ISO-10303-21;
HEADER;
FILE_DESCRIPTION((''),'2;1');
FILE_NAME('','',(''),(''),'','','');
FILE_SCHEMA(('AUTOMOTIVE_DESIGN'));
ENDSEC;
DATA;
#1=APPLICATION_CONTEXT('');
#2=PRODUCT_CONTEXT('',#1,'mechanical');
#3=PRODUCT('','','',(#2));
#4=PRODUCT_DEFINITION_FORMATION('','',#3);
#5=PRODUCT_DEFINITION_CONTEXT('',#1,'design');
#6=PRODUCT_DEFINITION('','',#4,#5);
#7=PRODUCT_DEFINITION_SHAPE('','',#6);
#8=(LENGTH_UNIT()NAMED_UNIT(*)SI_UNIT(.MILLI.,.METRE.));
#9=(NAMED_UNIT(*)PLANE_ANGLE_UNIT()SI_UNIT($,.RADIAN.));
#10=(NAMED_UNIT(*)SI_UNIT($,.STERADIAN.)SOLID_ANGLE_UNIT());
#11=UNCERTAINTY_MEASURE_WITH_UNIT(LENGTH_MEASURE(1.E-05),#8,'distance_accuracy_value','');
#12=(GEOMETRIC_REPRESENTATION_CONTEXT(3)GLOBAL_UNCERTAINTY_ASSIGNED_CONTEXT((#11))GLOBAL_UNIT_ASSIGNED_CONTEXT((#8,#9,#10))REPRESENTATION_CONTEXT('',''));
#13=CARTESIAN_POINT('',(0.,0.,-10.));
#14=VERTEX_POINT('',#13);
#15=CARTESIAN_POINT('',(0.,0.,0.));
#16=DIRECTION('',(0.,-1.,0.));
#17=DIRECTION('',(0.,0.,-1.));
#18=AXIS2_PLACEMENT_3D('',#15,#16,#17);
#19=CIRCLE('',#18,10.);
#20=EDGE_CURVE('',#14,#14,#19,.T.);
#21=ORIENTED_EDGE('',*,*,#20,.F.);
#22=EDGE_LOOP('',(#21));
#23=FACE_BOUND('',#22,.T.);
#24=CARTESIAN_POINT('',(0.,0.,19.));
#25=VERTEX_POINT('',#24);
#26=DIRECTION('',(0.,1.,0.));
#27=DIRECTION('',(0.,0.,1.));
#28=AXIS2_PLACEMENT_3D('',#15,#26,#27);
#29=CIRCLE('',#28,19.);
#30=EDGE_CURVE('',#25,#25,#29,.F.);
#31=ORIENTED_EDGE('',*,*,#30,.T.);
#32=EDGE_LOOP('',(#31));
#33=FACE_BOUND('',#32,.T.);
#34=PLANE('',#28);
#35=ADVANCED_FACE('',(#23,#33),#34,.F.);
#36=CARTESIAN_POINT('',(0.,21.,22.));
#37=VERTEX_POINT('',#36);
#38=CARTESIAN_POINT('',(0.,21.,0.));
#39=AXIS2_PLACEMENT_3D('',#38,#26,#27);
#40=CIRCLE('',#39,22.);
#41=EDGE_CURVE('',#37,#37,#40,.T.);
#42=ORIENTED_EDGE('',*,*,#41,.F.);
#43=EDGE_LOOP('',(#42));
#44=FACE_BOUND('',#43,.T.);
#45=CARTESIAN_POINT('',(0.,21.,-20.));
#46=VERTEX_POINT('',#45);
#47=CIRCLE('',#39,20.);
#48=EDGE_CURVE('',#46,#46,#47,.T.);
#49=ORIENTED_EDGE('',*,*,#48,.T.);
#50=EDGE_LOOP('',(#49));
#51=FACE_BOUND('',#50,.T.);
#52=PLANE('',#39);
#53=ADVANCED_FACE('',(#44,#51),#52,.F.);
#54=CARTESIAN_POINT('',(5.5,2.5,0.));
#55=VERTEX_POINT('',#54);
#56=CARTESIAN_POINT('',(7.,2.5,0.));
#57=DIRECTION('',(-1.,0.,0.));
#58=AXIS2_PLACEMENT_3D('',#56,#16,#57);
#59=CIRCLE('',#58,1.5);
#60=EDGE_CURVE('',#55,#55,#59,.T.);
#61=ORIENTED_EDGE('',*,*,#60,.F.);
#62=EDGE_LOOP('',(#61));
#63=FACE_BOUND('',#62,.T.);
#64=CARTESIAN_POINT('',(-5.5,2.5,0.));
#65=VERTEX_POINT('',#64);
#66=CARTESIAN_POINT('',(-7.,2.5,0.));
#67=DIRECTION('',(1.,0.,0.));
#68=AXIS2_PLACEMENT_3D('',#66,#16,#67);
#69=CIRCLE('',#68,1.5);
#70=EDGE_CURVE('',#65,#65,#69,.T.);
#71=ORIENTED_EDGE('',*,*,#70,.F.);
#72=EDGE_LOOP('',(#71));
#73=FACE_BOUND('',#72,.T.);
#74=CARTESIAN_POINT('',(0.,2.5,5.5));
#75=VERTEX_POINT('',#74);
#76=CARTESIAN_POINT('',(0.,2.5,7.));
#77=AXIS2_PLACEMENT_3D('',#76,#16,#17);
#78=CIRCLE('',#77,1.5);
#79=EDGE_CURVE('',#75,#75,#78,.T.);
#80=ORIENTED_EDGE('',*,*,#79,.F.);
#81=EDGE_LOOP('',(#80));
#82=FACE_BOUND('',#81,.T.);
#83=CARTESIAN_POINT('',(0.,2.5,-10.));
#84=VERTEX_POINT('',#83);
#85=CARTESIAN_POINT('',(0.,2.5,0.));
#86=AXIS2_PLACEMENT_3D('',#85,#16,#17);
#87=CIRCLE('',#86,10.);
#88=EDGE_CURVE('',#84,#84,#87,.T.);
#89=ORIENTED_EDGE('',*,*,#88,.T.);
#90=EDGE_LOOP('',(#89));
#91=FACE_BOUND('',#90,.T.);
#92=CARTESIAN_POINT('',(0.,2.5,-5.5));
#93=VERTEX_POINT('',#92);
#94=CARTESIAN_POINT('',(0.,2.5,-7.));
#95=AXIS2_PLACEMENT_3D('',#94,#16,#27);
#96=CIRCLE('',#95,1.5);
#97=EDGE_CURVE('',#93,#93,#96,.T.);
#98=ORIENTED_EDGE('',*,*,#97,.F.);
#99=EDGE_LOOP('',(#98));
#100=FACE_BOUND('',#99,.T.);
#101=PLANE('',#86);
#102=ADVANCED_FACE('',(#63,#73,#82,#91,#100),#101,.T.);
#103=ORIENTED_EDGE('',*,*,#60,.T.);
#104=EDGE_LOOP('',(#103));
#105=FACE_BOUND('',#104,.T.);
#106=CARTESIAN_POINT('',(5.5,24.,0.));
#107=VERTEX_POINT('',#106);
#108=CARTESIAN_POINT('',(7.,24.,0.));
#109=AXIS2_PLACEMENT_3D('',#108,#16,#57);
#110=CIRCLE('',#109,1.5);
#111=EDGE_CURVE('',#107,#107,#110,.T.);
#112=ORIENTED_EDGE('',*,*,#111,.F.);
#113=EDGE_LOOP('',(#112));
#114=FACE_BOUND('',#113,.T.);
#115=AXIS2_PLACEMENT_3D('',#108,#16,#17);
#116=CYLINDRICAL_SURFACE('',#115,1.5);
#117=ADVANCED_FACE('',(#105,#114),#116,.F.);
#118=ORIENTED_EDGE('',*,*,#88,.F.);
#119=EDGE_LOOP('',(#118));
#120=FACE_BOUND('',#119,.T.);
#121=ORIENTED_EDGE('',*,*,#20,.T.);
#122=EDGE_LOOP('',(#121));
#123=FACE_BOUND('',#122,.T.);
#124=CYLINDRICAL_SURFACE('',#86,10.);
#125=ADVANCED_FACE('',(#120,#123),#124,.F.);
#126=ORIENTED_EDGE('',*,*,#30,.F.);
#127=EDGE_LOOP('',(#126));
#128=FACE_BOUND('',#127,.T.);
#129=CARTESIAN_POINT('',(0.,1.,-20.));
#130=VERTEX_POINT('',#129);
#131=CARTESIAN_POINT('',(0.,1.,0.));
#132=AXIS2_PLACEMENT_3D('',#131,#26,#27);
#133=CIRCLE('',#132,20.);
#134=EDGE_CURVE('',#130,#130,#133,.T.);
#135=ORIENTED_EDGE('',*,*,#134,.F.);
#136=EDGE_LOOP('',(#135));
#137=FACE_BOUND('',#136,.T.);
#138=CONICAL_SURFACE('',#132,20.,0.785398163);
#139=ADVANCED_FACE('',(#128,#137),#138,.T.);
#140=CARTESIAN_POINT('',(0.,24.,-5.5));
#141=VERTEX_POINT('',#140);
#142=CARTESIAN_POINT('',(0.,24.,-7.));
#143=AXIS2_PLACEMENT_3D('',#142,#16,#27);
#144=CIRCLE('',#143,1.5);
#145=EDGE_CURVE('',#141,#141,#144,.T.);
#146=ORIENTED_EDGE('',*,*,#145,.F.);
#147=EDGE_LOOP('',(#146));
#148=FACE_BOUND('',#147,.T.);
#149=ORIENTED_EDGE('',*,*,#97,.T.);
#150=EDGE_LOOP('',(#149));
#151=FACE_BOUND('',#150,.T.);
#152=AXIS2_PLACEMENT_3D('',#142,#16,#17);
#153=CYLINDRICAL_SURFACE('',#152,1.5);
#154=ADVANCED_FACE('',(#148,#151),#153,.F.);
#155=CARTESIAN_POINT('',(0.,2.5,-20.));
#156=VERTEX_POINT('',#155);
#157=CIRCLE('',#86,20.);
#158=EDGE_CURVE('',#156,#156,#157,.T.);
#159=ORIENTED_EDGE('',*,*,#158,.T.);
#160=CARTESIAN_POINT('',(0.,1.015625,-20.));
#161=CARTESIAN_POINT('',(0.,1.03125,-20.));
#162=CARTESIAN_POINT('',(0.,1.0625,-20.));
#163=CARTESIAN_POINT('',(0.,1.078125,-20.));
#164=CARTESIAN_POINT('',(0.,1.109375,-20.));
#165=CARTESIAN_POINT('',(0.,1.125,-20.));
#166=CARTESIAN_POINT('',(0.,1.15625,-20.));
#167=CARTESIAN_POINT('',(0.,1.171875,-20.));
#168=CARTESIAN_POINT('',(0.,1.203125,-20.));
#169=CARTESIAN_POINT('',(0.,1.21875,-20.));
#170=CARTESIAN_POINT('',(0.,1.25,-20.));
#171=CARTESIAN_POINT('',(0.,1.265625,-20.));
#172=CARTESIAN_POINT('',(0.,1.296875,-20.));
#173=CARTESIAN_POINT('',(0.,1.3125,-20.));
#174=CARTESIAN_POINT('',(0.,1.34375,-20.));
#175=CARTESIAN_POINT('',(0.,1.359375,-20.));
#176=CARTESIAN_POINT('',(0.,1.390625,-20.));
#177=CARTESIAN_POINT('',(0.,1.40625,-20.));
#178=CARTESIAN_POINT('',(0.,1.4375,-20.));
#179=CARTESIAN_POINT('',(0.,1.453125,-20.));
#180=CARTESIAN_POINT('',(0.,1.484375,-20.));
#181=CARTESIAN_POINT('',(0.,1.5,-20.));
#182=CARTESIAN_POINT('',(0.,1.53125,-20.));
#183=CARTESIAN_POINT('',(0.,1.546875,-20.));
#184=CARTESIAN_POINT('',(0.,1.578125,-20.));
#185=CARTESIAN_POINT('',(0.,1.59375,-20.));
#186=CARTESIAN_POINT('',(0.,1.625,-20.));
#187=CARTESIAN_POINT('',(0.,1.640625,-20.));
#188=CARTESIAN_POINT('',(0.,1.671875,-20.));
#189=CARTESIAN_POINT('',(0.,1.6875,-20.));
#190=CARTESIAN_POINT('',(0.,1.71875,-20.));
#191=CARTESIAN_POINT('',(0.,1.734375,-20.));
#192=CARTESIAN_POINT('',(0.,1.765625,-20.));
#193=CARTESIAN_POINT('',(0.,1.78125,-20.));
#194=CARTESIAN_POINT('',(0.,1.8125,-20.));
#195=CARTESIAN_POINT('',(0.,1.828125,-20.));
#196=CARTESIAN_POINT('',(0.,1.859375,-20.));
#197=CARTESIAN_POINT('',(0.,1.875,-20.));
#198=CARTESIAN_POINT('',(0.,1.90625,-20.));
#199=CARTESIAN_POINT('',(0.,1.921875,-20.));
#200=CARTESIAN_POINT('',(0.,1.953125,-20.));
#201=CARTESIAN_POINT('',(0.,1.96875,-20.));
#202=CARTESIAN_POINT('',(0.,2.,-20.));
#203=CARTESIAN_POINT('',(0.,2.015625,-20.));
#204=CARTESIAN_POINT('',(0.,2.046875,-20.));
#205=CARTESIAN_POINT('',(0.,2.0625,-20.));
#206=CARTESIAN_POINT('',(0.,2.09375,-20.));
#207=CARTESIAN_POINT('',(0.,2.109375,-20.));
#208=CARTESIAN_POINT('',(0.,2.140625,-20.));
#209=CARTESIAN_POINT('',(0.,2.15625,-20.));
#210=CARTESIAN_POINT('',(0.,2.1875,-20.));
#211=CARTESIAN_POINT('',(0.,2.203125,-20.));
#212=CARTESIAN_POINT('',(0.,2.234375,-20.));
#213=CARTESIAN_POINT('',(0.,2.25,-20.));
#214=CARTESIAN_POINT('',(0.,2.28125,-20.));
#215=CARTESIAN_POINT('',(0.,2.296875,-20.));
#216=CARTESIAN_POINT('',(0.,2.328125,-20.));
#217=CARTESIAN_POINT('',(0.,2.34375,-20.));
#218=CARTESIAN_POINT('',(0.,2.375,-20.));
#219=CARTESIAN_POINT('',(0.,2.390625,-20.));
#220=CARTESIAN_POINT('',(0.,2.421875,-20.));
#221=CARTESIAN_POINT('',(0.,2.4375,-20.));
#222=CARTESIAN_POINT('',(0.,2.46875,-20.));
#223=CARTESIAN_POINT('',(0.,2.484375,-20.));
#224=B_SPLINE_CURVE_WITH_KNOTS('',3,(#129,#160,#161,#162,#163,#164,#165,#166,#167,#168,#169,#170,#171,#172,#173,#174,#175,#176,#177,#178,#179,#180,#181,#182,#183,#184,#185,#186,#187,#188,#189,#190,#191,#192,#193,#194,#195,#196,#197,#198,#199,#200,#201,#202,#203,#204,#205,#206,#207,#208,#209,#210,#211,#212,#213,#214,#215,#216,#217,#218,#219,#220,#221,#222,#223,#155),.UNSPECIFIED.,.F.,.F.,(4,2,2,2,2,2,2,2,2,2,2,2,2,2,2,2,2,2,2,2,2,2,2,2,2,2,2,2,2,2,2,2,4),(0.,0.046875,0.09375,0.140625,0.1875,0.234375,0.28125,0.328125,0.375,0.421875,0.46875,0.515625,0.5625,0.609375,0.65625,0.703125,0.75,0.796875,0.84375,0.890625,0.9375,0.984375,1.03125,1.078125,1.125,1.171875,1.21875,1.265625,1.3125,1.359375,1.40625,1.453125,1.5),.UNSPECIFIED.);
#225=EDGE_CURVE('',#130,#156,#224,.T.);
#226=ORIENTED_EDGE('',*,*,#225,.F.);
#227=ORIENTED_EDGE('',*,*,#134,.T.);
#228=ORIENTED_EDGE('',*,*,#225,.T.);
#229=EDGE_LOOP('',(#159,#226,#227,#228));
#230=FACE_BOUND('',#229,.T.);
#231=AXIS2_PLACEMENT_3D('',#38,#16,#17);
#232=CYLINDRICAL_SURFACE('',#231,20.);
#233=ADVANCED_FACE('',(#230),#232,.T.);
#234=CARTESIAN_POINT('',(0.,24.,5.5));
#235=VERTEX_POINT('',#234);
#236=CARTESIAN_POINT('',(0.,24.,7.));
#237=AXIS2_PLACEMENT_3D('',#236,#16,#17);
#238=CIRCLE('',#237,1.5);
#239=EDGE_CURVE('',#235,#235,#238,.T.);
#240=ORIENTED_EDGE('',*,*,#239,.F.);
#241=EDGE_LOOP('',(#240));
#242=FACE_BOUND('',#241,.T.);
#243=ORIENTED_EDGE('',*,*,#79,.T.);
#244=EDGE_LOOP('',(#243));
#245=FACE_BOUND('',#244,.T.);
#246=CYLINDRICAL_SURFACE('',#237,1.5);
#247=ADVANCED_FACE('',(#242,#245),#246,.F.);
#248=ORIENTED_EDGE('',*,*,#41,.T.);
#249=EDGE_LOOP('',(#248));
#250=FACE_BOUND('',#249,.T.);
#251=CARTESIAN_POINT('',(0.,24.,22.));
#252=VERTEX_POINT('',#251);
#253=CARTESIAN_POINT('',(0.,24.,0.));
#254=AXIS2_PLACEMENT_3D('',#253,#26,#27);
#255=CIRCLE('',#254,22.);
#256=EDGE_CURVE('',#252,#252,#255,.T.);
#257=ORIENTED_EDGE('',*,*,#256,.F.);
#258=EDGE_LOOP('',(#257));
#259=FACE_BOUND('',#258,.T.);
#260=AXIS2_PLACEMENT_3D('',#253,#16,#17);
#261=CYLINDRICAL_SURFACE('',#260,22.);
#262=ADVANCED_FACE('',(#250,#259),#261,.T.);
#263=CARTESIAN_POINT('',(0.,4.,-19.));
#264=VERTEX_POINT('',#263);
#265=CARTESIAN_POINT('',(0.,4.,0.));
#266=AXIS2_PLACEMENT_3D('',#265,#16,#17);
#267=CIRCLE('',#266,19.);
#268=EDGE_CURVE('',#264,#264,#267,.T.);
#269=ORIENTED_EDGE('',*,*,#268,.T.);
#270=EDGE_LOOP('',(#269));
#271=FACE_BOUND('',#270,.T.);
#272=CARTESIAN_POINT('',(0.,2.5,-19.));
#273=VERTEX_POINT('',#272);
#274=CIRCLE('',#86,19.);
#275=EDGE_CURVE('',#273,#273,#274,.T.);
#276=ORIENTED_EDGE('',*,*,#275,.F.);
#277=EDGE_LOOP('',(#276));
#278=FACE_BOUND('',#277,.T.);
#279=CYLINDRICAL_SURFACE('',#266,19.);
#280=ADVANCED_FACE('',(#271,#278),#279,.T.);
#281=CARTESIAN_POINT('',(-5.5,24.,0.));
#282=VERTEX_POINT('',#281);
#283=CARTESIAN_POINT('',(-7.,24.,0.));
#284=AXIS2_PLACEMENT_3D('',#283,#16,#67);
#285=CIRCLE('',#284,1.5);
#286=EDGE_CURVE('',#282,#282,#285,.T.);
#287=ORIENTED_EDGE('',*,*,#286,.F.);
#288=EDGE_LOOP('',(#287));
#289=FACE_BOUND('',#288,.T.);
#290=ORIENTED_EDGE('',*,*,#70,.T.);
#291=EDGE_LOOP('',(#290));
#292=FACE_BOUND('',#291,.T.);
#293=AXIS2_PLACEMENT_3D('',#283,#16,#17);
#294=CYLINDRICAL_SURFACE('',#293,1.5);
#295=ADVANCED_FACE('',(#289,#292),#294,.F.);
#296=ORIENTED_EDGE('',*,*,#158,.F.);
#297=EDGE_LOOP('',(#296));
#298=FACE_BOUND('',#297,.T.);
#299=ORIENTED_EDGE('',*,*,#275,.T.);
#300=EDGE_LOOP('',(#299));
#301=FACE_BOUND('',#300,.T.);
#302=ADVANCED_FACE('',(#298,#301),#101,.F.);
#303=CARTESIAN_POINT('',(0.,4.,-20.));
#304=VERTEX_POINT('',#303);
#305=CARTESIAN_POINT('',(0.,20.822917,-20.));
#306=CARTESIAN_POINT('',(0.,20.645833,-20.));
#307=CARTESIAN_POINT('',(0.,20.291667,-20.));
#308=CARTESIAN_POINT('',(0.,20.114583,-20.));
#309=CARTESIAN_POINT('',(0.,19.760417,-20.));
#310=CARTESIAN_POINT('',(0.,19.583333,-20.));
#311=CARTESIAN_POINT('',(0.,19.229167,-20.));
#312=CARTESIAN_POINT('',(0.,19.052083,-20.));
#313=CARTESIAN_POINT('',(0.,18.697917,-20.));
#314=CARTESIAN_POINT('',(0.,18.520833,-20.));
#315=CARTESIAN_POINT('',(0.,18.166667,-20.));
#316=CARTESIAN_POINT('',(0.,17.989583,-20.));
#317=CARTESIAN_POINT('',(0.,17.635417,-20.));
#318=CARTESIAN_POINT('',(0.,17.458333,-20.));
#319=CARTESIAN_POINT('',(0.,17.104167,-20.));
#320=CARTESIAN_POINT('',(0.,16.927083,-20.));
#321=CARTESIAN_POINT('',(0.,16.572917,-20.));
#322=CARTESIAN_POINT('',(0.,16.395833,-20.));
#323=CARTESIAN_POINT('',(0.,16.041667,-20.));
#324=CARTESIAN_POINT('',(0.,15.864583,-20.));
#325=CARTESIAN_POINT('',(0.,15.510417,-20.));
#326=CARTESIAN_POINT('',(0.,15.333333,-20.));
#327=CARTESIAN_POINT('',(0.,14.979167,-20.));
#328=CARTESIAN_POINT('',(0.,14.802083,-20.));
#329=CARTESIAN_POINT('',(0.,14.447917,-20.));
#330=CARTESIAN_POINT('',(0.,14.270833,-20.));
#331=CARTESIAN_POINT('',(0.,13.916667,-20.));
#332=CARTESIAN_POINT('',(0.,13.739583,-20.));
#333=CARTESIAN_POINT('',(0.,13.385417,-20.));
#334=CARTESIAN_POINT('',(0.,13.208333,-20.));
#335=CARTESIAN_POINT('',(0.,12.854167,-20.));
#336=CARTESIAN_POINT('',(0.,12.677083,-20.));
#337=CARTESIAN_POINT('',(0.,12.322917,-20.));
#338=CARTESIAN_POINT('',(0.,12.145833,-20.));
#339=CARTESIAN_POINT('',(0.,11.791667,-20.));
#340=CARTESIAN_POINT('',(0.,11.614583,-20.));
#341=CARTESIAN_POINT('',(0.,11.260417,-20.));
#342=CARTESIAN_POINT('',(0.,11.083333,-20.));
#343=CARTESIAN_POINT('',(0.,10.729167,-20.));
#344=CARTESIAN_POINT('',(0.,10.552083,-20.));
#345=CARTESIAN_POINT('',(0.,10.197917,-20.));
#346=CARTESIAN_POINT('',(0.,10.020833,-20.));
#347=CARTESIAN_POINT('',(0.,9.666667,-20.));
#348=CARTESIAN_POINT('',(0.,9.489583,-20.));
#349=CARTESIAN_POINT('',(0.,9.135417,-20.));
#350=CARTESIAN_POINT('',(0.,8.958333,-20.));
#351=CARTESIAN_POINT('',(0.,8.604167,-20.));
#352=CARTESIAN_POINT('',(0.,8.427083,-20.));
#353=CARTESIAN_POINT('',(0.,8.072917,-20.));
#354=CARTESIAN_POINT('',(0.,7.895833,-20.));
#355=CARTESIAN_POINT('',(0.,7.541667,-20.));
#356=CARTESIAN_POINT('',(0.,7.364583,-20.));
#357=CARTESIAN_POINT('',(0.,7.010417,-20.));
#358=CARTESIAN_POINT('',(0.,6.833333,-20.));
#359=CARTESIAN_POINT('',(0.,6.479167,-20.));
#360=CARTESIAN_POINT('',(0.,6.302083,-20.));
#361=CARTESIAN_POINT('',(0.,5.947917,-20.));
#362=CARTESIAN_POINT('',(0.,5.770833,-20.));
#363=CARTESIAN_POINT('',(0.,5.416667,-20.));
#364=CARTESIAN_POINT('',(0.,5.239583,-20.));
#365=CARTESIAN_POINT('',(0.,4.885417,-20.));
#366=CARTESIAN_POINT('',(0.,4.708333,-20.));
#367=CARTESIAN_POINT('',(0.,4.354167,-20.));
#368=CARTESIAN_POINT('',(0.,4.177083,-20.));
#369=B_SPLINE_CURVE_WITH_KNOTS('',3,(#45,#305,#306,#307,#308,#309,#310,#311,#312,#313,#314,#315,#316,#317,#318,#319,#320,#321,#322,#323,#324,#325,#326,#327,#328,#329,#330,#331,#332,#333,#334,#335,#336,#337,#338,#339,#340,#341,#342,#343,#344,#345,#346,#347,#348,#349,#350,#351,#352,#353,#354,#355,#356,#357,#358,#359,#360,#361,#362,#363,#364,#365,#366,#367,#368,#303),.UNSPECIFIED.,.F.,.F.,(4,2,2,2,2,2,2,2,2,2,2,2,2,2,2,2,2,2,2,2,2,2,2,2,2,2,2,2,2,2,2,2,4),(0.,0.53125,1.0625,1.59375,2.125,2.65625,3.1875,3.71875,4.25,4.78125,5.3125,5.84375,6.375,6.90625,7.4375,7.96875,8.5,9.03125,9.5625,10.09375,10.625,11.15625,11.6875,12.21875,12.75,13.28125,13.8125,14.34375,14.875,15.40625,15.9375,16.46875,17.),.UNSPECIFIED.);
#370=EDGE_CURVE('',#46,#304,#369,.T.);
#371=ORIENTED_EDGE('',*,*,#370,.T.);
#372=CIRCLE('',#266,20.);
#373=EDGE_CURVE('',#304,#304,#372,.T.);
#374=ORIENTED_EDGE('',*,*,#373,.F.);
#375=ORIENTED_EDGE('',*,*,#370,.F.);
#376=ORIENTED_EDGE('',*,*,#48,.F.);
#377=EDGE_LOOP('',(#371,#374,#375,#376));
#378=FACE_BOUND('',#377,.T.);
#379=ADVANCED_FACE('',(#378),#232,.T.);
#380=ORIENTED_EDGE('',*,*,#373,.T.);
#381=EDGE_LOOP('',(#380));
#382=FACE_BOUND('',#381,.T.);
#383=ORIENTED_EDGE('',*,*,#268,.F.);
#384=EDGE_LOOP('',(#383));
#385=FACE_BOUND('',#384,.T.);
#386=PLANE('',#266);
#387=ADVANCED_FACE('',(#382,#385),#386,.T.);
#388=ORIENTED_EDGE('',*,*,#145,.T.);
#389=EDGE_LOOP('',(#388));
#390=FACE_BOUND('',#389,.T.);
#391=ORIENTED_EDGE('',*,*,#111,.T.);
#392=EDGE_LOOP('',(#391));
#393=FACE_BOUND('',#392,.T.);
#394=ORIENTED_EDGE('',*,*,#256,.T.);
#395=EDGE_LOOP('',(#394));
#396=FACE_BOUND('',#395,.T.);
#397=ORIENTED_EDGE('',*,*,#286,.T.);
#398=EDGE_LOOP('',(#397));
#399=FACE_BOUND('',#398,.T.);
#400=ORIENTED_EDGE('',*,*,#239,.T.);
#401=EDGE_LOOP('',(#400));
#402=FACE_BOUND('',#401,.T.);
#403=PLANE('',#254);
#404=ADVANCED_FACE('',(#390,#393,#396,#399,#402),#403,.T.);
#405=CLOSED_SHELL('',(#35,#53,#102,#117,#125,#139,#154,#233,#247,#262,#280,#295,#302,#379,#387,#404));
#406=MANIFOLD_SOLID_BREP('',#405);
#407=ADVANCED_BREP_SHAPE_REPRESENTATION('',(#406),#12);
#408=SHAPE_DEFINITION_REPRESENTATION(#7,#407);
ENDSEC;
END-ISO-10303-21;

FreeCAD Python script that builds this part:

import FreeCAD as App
import Part
import Sketcher
Q = App.Units.Quantity


def edges_at(feature, points):
    """Names of the edges that pass closest to the given points."""
    edges = feature.Shape.Edges
    near = lambda p: min(range(len(edges)), key=lambda i: edges[i].distToShape(Part.Vertex(*p))[0])
    return sorted({f"Edge{near(p) + 1}" for p in points})

doc = App.newDocument("Part")
body = doc.addObject("PartDesign::Body", "Body")

# Sketch on XZ plane
sketch1 = doc.addObject("Sketcher::SketchObject", "Sketch")
body.addObject(sketch1)
sketch1.AttachmentSupport = (doc.XZ_Plane, [""])
sketch1.MapMode = "FlatFace"
sketch1.addGeometry(Part.Circle(App.Vector(0, 0, 0), App.Vector(0, 0, 1), 20), False)
sketch1.addConstraint([
    Sketcher.Constraint("Coincident", 0, 3, -1, 1),
    Sketcher.Constraint("Diameter", 0, Q("40 mm")),
])
pad1 = doc.addObject("PartDesign::Pad", "Pad")
body.addObject(pad1)
pad1.Profile = sketch1
pad1.Length = 21
pad1.Reversed = True

# Sketch on XZ plane
sketch2 = doc.addObject("Sketcher::SketchObject", "Sketch001")
body.addObject(sketch2)
sketch2.AttachmentSupport = (doc.XZ_Plane, [""])
sketch2.MapMode = "FlatFace"
sketch2.addGeometry(Part.Circle(App.Vector(0, 0, 0), App.Vector(0, 0, 1), 10), False)
sketch2.addConstraint([
    Sketcher.Constraint("Coincident", 0, 3, -1, 1),
    Sketcher.Constraint("Diameter", 0, Q("20 mm")),
])
pocket1 = doc.addObject("PartDesign::Pocket", "Pocket")
body.addObject(pocket1)
pocket1.Profile = sketch2
pocket1.Length = 2.5

# Sketch on XZ plane
sketch3 = doc.addObject("Sketcher::SketchObject", "Sketch002")
body.addObject(sketch3)
sketch3.AttachmentSupport = (doc.XZ_Plane, [""])
sketch3.MapMode = "FlatFace"
sketch3.AttachmentOffset = App.Placement(App.Vector(0, 0, -2.5), App.Rotation())
sketch3.addGeometry([
    Part.Circle(App.Vector(0, 0, 0), App.Vector(0, 0, 1), 20),
    Part.Circle(App.Vector(0, 0, 0), App.Vector(0, 0, 1), 19),
], False)
sketch3.addConstraint([
    Sketcher.Constraint("Coincident", 0, 3, -1, 1),
    Sketcher.Constraint("Coincident", 1, 3, -1, 1),
    Sketcher.Constraint("Diameter", 0, Q("40 mm")),
    Sketcher.Constraint("Diameter", 1, Q("38 mm")),
])
pocket2 = doc.addObject("PartDesign::Pocket", "Pocket001")
body.addObject(pocket2)
pocket2.Profile = sketch3
pocket2.Length = 1.5
doc.recompute()

chamfer = doc.addObject("PartDesign::Chamfer", "Chamfer")
body.addObject(chamfer)
chamfer.Base = (pocket2, edges_at(pocket2, [(0, 0, 20)]))
chamfer.Size = 1

# Sketch on XZ plane
sketch4 = doc.addObject("Sketcher::SketchObject", "Sketch003")
body.addObject(sketch4)
sketch4.AttachmentSupport = (doc.XZ_Plane, [""])
sketch4.MapMode = "FlatFace"
sketch4.AttachmentOffset = App.Placement(App.Vector(0, 0, -21), App.Rotation())
sketch4.addGeometry(Part.Circle(App.Vector(0, 0, 0), App.Vector(0, 0, 1), 22), False)
sketch4.addConstraint([
    Sketcher.Constraint("Coincident", 0, 3, -1, 1),
    Sketcher.Constraint("Diameter", 0, Q("44 mm")),
])
pad2 = doc.addObject("PartDesign::Pad", "Pad001")
body.addObject(pad2)
pad2.Profile = sketch4
pad2.Length = 3
pad2.Reversed = True

# Sketch on XZ plane
sketch5 = doc.addObject("Sketcher::SketchObject", "Sketch004")
body.addObject(sketch5)
sketch5.AttachmentSupport = (doc.XZ_Plane, [""])
sketch5.MapMode = "FlatFace"
sketch5.AttachmentOffset = App.Placement(App.Vector(0, 0, -2.5), App.Rotation())
sketch5.addGeometry(Part.Circle(App.Vector(0, 7, 0), App.Vector(0, 0, 1), 1.5), False)
sketch5.addConstraint([
    Sketcher.Constraint("PointOnObject", 0, 3, -2),
    Sketcher.Constraint("Diameter", 0, Q("3 mm")),
    Sketcher.Constraint("DistanceY", -1, 1, 0, 3, Q("7 mm")),
])
pocket3 = doc.addObject("PartDesign::Pocket", "Pocket002")
body.addObject(pocket3)
pocket3.Profile = sketch5
pocket3.Type = "ThroughAll"
doc.recompute()

polarpattern = doc.addObject("PartDesign::PolarPattern", "PolarPattern")
body.addObject(polarpattern)
polarpattern.Originals = [pocket3]
polarpattern.Axis = (doc.Y_Axis, [""])
polarpattern.Angle = 360
polarpattern.Occurrences = 4
body.Tip = polarpattern

doc.recompute()
